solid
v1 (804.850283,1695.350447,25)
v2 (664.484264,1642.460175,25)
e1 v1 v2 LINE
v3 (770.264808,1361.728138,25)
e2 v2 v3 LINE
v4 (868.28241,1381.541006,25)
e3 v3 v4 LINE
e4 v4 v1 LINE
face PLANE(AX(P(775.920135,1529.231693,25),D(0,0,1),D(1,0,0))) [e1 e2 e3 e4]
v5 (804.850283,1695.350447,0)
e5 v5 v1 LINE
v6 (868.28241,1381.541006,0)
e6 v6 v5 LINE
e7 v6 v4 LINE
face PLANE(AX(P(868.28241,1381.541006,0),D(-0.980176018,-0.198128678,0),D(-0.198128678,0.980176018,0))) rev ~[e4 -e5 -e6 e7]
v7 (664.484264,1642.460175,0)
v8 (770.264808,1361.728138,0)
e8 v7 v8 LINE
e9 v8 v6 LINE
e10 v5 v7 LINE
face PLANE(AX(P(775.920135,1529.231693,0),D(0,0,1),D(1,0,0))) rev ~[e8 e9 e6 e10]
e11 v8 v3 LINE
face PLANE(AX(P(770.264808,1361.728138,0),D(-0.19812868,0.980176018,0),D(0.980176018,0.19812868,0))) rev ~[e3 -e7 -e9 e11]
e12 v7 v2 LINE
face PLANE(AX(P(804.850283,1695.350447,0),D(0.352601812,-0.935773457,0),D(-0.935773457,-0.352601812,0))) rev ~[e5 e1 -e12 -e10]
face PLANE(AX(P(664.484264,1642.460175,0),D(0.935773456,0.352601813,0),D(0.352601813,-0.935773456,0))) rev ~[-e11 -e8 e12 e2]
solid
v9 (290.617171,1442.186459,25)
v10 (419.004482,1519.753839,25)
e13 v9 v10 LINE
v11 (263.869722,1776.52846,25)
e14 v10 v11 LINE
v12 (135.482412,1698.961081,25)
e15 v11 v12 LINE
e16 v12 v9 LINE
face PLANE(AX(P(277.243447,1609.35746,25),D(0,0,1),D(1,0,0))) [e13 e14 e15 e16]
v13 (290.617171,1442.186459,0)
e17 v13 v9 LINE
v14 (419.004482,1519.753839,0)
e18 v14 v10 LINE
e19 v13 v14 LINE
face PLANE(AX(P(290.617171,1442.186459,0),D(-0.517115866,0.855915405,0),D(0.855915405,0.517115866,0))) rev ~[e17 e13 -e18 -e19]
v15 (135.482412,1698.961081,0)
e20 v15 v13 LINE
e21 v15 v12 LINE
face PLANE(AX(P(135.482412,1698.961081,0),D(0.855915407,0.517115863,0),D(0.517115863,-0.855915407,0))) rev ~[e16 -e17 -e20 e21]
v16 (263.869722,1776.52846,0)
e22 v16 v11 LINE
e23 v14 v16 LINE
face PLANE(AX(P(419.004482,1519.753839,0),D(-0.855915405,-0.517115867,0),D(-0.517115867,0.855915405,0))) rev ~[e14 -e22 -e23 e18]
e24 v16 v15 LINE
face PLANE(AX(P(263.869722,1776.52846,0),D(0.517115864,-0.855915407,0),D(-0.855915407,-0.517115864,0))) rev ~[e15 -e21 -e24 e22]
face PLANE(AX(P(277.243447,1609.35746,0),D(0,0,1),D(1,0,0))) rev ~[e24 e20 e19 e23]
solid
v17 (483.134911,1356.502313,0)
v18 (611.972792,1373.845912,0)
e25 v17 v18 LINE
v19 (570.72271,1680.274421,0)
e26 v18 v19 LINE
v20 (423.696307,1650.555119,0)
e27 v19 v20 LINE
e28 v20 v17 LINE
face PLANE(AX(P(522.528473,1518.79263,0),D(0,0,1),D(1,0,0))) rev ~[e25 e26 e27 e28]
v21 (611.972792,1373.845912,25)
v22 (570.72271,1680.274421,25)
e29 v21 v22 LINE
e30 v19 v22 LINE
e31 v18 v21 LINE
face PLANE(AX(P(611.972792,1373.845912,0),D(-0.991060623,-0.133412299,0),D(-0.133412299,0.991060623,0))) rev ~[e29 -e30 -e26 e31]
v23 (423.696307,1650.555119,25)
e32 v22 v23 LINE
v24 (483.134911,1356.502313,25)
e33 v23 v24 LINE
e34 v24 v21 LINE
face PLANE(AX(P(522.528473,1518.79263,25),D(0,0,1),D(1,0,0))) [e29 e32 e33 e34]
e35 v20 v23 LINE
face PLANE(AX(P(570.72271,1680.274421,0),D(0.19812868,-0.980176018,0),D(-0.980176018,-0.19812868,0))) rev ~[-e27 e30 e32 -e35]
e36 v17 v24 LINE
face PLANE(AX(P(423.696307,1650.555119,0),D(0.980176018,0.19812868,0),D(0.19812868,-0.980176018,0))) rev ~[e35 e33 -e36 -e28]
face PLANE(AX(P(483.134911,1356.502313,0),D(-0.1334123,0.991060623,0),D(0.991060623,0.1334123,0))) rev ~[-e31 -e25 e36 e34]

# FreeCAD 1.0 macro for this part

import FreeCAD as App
import Part
import Sketcher
from FreeCAD import Vector


def add_polygon(sketch, points):
    """Adds a closed chain of lines whose ends are joined by coincident constraints."""
    first, n = sketch.GeometryCount, len(points)
    for a, b in zip(points, points[1:] + points[:1]):
        sketch.addGeometry(Part.LineSegment(App.Vector(*a, 0), App.Vector(*b, 0)), False)
    for i in range(n):
        sketch.addConstraint(Sketcher.Constraint("Coincident", first + i, 2, first + (i + 1) % n, 1))

doc = App.newDocument("Part")
body = doc.addObject("PartDesign::Body", "Body")
body.AllowCompound = True

# Sketch on XY plane
sketch1 = doc.addObject("Sketcher::SketchObject", "Sketch")
body.addObject(sketch1)
sketch1.AttachmentSupport = (doc.XY_Plane, [""])
sketch1.MapMode = "FlatFace"
add_polygon(sketch1, [(264, 1777), (135, 1699), (291, 1442), (419, 1520)])  # lines 0-3
add_polygon(sketch1, [(571, 1680), (424, 1651), (483, 1357), (612, 1374)])  # lines 4-7
add_polygon(sketch1, [(805, 1695), (664, 1642), (770, 1362), (868, 1382)])  # lines 8-11
sketch1.addConstraint([
    Sketcher.Constraint("Perpendicular", 0, 1),
    Sketcher.Constraint("Perpendicular", 1, 2),
    Sketcher.Constraint("Perpendicular", 2, 3),
    Sketcher.Constraint("Perpendicular", 4, 5),
    Sketcher.Constraint("Perpendicular", 6, 7),
    Sketcher.Constraint("Perpendicular", 8, 9),
    Sketcher.Constraint("Perpendicular", 5, 10),
    Sketcher.Constraint("Perpendicular", 10, 11),
    Sketcher.Constraint("Equal", 2, 4),
    Sketcher.Constraint("Equal", 3, 5),
    Sketcher.Constraint("Equal", 4, 8),
    Sketcher.Constraint("Equal", 5, 9),
    Sketcher.Constraint("Distance", 0, 149.999999),
    Sketcher.Constraint("Distance", 1, 300.0),
    Sketcher.Constraint("Distance", 6, 130.0),
    Sketcher.Constraint("Distance", 10, 100.0),
    Sketcher.Constraint("DistanceY", 1, 2, 3, 2, 334.342001),
    Sketcher.Constraint("DistanceX", 0, 2, 5, 2, 347.652499),
    Sketcher.Constraint("DistanceY", 5, 2, 6, 2, 17.343599),
    Sketcher.Constraint("DistanceX", 7, 2, 9, 2, 199.542098),
    Sketcher.Constraint("DistanceY", 9, 2, 2, 2, 158.025701),
    Sketcher.Constraint("DistanceY", -1, 1, 0, 2, 1698.961081),
    Sketcher.Constraint("DistanceX", -1, 1, 1, 2, 290.617171),
    Sketcher.Constraint("DistanceY", -1, 1, 4, 2, 1650.555119),
])
pad1 = doc.addObject("PartDesign::Pad", "Pad")
body.addObject(pad1)
pad1.Profile = sketch1
pad1.Length = 25

doc.recompute()
